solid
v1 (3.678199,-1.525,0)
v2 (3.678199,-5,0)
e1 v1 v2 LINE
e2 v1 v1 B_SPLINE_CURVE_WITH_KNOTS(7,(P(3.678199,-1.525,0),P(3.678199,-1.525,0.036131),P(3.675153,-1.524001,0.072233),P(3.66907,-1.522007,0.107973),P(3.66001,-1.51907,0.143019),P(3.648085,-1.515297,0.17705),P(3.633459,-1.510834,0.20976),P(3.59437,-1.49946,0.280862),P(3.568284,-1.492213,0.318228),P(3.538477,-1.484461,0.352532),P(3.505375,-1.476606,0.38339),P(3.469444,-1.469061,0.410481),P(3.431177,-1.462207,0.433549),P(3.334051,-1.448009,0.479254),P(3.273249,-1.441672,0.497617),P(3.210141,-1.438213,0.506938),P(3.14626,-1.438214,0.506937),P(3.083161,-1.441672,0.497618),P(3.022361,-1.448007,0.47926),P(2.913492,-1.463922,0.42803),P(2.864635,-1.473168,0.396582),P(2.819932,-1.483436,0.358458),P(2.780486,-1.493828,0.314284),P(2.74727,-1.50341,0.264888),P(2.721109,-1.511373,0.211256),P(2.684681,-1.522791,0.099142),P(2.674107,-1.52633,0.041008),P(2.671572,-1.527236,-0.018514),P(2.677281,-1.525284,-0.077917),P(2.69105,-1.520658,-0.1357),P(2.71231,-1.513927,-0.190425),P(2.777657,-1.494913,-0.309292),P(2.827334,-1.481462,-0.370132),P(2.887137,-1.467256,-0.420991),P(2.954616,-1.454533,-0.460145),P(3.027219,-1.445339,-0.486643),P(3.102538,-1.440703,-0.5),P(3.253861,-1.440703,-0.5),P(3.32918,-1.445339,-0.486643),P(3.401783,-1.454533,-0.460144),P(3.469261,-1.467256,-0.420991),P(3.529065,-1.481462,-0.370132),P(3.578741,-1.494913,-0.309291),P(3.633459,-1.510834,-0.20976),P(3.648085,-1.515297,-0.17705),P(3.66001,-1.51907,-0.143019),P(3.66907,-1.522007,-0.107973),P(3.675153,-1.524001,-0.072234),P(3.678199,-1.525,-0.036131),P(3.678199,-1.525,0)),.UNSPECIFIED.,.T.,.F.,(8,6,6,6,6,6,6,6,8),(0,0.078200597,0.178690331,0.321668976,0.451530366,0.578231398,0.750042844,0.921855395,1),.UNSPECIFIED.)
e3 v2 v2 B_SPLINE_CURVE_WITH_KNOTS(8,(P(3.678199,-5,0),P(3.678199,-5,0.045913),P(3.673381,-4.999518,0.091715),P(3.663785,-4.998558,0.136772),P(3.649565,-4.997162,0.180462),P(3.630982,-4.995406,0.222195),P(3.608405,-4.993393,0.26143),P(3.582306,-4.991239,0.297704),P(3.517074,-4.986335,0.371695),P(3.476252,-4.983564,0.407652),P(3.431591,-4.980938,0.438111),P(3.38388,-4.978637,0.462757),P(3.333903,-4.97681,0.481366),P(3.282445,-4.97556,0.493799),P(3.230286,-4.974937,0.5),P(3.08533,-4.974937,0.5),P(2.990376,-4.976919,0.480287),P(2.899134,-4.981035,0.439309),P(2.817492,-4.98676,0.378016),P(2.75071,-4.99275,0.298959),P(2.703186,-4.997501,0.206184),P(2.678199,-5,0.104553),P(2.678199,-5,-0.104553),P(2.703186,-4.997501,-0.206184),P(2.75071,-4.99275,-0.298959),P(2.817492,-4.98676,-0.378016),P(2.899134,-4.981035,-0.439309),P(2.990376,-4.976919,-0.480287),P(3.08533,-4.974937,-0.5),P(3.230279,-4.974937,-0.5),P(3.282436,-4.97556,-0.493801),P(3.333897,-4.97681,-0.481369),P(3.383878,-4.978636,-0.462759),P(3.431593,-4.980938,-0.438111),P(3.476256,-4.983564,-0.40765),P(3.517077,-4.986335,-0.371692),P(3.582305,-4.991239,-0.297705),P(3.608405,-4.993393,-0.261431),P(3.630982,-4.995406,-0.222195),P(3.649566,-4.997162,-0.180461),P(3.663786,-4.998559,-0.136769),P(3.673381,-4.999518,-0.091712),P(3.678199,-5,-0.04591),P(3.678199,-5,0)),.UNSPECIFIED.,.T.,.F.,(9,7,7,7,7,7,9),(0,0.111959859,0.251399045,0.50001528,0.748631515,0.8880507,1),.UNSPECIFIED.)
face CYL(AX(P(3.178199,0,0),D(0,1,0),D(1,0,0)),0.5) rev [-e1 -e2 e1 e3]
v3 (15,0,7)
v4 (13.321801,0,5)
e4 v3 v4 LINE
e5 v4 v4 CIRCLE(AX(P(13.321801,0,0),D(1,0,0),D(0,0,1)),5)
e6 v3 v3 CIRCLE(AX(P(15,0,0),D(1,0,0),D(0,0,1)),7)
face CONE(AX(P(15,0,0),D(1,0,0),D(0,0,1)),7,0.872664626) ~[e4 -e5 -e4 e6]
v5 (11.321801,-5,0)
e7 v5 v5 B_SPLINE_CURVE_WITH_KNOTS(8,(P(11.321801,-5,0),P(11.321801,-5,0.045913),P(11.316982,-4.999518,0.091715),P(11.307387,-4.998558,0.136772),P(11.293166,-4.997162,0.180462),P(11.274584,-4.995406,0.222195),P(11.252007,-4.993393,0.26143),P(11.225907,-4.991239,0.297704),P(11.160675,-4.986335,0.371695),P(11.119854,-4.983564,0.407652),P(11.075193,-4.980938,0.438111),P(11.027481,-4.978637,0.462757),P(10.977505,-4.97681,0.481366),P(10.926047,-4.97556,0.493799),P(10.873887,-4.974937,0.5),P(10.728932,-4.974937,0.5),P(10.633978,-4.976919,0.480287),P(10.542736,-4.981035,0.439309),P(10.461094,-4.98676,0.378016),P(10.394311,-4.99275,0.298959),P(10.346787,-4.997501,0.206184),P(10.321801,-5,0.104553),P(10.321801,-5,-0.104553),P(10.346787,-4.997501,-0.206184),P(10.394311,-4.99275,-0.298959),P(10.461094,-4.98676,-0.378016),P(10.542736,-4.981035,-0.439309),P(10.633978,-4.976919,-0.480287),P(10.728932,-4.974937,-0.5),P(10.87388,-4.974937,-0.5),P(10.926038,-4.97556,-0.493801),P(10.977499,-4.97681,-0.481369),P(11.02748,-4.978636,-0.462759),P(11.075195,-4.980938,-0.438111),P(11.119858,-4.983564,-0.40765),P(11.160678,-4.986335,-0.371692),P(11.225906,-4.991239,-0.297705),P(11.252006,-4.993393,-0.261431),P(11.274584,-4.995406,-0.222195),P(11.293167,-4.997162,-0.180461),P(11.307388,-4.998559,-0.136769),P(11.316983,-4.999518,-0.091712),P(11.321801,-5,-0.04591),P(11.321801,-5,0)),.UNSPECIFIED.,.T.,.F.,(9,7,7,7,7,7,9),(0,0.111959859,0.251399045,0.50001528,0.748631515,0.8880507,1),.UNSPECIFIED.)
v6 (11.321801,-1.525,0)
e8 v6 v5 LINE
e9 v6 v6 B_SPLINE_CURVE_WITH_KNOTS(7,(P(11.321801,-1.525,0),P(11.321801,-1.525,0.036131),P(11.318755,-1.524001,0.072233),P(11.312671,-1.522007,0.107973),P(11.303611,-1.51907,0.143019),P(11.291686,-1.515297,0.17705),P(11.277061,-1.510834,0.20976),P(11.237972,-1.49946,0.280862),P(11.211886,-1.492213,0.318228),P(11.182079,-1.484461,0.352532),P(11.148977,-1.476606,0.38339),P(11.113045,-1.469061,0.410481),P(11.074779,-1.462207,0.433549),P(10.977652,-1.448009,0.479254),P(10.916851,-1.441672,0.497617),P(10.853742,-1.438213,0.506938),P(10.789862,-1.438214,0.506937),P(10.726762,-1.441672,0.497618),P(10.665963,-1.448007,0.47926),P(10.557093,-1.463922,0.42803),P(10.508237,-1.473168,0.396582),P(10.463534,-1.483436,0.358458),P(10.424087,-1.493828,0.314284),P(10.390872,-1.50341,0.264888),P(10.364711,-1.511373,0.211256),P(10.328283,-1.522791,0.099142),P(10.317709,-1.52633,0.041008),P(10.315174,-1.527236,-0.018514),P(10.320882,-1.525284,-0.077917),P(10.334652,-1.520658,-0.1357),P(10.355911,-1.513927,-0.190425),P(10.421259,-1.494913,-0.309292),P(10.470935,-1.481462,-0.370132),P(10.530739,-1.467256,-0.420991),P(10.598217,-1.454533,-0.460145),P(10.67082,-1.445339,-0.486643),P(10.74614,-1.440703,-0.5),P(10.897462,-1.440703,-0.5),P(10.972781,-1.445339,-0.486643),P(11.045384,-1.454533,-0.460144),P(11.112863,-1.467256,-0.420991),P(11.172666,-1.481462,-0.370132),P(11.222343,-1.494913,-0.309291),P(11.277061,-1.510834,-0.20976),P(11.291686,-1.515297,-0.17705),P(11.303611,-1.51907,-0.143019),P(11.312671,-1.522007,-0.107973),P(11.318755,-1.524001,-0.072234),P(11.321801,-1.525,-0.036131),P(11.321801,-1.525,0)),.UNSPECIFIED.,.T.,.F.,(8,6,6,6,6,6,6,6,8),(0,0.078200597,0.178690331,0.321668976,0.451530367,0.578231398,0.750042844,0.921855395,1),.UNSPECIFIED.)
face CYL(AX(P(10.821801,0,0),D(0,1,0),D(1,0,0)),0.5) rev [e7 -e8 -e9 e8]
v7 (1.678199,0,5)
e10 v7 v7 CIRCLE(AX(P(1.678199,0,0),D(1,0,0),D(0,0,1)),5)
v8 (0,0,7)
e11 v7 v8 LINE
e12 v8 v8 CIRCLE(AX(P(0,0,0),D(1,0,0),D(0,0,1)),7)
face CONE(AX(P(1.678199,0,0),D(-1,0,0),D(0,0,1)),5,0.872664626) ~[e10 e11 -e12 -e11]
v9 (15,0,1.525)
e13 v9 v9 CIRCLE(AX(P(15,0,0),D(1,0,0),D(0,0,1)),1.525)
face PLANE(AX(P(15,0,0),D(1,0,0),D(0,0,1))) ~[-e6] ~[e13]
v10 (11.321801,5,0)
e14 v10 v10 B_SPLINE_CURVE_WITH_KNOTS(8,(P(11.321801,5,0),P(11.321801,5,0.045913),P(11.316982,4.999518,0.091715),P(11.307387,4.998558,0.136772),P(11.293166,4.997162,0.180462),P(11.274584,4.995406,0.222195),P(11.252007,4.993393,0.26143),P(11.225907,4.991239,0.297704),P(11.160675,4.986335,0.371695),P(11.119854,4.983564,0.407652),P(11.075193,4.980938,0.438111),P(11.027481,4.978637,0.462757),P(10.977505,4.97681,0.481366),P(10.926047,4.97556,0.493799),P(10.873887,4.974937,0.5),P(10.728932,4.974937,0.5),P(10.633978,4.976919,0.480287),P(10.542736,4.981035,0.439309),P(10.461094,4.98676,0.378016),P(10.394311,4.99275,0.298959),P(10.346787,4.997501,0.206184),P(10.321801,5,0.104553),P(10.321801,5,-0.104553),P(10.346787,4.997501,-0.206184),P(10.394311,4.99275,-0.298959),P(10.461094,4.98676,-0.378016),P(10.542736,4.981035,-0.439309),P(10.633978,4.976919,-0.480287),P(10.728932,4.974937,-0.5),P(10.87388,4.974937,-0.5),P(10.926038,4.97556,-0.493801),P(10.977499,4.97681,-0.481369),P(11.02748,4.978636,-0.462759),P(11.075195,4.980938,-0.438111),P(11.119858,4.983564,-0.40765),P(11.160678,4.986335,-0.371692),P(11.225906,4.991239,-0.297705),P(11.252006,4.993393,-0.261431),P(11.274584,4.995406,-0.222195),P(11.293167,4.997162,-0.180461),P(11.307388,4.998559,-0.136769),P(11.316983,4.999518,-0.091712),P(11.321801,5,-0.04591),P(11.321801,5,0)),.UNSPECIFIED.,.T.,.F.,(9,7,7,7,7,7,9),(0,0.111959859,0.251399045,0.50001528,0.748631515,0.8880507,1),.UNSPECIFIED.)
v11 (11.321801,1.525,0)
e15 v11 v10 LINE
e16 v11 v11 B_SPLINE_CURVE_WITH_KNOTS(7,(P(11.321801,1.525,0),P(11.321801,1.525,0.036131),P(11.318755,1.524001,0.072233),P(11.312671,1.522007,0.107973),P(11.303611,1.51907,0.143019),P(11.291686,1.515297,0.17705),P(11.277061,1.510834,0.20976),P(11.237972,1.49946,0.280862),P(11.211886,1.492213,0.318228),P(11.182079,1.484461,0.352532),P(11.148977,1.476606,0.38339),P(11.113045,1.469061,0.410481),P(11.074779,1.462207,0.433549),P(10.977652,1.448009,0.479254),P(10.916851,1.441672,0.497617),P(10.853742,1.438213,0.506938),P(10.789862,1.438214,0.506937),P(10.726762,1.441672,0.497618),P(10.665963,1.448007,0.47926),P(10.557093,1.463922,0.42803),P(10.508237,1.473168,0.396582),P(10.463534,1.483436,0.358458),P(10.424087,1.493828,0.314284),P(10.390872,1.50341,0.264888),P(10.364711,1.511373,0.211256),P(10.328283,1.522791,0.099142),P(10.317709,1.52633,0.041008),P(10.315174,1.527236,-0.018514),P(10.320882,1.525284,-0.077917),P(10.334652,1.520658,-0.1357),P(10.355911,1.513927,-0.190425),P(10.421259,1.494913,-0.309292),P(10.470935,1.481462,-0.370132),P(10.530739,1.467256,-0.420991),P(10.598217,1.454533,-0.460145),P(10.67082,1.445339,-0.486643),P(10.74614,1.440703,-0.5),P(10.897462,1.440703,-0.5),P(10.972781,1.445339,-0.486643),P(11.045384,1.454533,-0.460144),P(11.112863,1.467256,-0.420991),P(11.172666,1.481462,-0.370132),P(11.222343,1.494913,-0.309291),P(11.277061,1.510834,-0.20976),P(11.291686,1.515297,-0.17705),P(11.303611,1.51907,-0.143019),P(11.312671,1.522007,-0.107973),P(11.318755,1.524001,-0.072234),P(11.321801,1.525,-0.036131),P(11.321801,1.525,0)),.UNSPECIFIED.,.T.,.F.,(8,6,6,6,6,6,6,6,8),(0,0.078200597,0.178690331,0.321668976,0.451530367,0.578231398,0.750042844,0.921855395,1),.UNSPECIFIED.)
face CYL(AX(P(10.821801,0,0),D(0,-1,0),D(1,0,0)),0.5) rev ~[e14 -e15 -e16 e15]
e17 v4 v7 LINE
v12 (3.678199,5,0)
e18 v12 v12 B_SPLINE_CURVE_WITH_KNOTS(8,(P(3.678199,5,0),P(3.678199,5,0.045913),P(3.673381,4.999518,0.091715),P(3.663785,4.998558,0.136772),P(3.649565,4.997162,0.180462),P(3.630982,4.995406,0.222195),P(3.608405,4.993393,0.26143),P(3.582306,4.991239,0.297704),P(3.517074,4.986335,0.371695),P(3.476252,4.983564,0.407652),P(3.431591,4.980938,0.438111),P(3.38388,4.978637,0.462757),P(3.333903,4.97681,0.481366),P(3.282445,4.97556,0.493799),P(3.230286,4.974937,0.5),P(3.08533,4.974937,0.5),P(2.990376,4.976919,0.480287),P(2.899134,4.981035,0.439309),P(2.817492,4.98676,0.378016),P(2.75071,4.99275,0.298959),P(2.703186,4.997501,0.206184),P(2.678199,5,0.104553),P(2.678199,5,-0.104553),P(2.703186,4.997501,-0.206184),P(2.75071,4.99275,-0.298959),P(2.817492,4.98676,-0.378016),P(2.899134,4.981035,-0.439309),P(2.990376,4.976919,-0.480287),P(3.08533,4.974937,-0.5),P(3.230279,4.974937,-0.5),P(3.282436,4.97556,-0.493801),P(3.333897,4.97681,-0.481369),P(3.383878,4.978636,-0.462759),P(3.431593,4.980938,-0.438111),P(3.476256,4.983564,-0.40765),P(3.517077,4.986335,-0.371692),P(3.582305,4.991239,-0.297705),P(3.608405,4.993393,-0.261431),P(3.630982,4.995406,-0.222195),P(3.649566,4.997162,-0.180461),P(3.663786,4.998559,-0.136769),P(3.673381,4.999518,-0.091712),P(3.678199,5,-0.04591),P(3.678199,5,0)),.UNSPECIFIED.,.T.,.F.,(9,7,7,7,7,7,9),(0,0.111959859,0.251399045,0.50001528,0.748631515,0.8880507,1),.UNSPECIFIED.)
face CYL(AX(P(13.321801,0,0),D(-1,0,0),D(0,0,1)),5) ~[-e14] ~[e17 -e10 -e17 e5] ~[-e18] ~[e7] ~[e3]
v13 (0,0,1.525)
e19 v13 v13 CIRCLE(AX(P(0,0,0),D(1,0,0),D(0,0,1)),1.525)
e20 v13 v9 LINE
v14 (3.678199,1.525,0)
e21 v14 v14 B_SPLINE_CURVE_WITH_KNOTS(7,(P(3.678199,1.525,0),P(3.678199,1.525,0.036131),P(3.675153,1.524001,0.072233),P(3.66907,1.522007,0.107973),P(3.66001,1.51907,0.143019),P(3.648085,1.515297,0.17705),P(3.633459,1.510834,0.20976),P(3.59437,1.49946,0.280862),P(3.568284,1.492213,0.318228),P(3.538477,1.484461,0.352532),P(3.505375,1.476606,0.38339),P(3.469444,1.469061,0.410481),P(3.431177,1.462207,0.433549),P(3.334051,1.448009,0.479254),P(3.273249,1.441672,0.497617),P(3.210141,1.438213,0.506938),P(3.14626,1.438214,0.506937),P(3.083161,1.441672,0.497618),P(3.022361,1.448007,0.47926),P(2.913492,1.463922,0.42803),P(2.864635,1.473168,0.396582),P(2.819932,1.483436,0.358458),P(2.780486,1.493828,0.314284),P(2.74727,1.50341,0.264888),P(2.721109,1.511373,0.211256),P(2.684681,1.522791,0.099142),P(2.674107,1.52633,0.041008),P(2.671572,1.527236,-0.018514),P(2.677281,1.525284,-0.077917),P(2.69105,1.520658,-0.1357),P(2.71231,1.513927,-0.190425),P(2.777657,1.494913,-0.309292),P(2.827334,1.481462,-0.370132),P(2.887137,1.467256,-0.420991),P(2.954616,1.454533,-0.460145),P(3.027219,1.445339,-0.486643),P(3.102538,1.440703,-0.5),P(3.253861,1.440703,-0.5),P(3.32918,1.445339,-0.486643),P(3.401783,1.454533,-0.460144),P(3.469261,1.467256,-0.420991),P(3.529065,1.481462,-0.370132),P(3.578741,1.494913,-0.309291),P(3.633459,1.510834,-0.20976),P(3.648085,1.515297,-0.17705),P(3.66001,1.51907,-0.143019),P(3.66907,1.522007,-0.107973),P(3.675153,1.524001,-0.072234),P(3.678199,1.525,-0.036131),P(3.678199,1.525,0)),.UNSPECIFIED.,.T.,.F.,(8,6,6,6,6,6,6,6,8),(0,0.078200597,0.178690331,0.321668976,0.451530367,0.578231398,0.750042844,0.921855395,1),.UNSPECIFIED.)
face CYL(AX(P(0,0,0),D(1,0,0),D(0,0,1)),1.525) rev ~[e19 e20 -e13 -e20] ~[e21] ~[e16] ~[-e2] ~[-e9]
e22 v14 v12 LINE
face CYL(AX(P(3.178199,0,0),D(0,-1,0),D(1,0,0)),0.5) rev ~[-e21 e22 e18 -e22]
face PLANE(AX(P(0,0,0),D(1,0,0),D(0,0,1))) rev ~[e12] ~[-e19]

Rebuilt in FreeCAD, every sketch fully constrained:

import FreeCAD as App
import Part
import Sketcher
Q = App.Units.Quantity

doc = App.newDocument("Part")
body = doc.addObject("PartDesign::Body", "Body")

# Sketch on XZ plane
sketch1 = body.newObject("Sketcher::SketchObject", "Sketch")
sketch1.AttachmentSupport = (doc.getObject("XZ_Plane"), [""])
sketch1.MapMode = "FlatFace"
sketch1.addGeometry(Part.LineSegment(App.Vector(0, 7, 0), App.Vector(0, 1.5, 0)), False)
sketch1.addGeometry(Part.LineSegment(App.Vector(0, 1.5, 0), App.Vector(15, 1.5, 0)), False)
sketch1.addGeometry(Part.LineSegment(App.Vector(15, 1.5, 0), App.Vector(15, 7, 0)), False)
sketch1.addGeometry(Part.LineSegment(App.Vector(15, 7, 0), App.Vector(13.3, 5, 0)), False)
sketch1.addGeometry(Part.LineSegment(App.Vector(13.3, 5, 0), App.Vector(1.7, 5, 0)), False)
sketch1.addGeometry(Part.LineSegment(App.Vector(1.7, 5, 0), App.Vector(0, 7, 0)), False)
sketch1.addConstraint(Sketcher.Constraint("Coincident", 0, 2, 1, 1))
sketch1.addConstraint(Sketcher.Constraint("Coincident", 1, 2, 2, 1))
sketch1.addConstraint(Sketcher.Constraint("Coincident", 2, 2, 3, 1))
sketch1.addConstraint(Sketcher.Constraint("Coincident", 3, 2, 4, 1))
sketch1.addConstraint(Sketcher.Constraint("Coincident", 4, 2, 5, 1))
sketch1.addConstraint(Sketcher.Constraint("Coincident", 5, 2, 0, 1))
sketch1.addConstraint(Sketcher.Constraint("Vertical", 0))
sketch1.addConstraint(Sketcher.Constraint("Horizontal", 1))
sketch1.addConstraint(Sketcher.Constraint("Vertical", 2))
sketch1.addConstraint(Sketcher.Constraint("Horizontal", 4))
sketch1.addConstraint(Sketcher.Constraint("PointOnObject", 0, 2, -2))
sketch1.addConstraint(Sketcher.Constraint("Horizontal", 2, 2, 5, 2))
sketch1.addConstraint(Sketcher.Constraint("Equal", 3, 5))
sketch1.addConstraint(Sketcher.Constraint("DistanceX", 1, 1, 1, 2, Q("15 mm")))
sketch1.addConstraint(Sketcher.Constraint("Angle", 3, Q("-130 deg")))
sketch1.addConstraint(Sketcher.Constraint("DistanceY", -1, 1, 2, 2, Q("7 mm")))
sketch1.addConstraint(Sketcher.Constraint("DistanceY", -1, 1, 3, 2, Q("5 mm")))
sketch1.addConstraint(Sketcher.Constraint("DistanceY", 0, 2, 0, 1, Q("5.475 mm")))
revolution = body.newObject("PartDesign::Revolution", "Revolution")
revolution.Profile = sketch1
revolution.ReferenceAxis = (sketch1, ["H_Axis"])
revolution.Angle = 360

# Sketch on XZ plane
sketch2 = body.newObject("Sketcher::SketchObject", "Sketch001")
sketch2.AttachmentSupport = (doc.getObject("XZ_Plane"), [""])
sketch2.MapMode = "FlatFace"
sketch2.addGeometry(Part.Circle(App.Vector(3.2, 0, 0), App.Vector(0, 0, 1), 0.5), False)
sketch2.addGeometry(Part.Circle(App.Vector(10.8, 0, 0), App.Vector(0, 0, 1), 0.5), False)
sketch2.addConstraint(Sketcher.Constraint("Equal", 0, 1))
sketch2.addConstraint(Sketcher.Constraint("PointOnObject", 0, 3, -1))
sketch2.addConstraint(Sketcher.Constraint("PointOnObject", 1, 3, -1))
sketch2.addConstraint(Sketcher.Constraint("Diameter", 0, Q("1 mm")))
sketch2.addConstraint(Sketcher.Constraint("DistanceX", -1, 1, 0, 3, Q("3.178199 mm")))
sketch2.addConstraint(Sketcher.Constraint("DistanceX", -1, 1, 1, 3, Q("10.821801 mm")))
pocket1 = body.newObject("PartDesign::Pocket", "Pocket")
pocket1.Profile = sketch2
pocket1.Type = "ThroughAll"
pocket1.Midplane = True

doc.recompute()
